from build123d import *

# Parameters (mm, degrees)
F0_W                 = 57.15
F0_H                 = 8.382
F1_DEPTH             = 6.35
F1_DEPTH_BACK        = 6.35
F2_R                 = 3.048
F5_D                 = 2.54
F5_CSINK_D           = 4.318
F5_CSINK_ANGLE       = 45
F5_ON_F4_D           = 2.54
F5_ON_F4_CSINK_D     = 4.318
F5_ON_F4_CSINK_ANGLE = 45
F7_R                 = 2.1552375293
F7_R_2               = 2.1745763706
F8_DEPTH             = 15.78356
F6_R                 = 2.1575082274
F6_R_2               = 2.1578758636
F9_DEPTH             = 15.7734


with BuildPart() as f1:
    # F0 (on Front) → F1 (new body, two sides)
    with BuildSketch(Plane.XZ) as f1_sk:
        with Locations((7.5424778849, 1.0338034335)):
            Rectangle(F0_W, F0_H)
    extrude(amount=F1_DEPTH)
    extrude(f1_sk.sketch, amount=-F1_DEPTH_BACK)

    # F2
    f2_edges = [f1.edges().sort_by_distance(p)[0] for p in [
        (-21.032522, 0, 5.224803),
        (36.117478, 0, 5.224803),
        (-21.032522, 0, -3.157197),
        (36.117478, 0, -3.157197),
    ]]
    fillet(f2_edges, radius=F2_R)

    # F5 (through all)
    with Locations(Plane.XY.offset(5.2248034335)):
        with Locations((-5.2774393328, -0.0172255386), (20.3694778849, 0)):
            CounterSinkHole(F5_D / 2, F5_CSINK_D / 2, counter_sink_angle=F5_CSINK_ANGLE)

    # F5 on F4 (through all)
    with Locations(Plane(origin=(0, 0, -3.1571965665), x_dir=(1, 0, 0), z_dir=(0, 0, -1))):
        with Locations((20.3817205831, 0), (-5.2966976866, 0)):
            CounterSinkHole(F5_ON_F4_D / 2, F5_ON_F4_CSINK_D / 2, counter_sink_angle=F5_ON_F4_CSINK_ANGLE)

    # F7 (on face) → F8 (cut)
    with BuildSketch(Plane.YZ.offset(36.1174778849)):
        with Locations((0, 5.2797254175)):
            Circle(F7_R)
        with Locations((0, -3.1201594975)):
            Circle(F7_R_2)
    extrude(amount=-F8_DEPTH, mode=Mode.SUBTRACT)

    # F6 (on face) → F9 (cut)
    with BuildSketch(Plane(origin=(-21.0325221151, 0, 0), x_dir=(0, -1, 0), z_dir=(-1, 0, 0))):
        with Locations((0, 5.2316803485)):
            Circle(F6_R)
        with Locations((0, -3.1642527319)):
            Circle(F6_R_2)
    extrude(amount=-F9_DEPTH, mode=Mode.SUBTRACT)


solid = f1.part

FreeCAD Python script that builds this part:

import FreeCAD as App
import Part
import Sketcher

V = App.Vector
Q = App.Units.Quantity


def edges_at(feature, points):
    """Names of the edges that pass closest to the given points."""
    edges = feature.Shape.Edges
    near = lambda p: min(range(len(edges)), key=lambda i: edges[i].distToShape(Part.Vertex(*p))[0])
    return sorted({f"Edge{near(p) + 1}" for p in points})


def add_polygon(sketch, points):
    """Adds a closed chain of lines whose ends are joined by coincident constraints."""
    first, n = sketch.GeometryCount, len(points)
    for a, b in zip(points, points[1:] + points[:1]):
        sketch.addGeometry(Part.LineSegment(App.Vector(*a, 0), App.Vector(*b, 0)), False)
    for i in range(n):
        sketch.addConstraint(Sketcher.Constraint("Coincident", first + i, 2, first + (i + 1) % n, 1))

doc = App.newDocument("Part")
params = doc.addObject("Spreadsheet::Sheet", "Params")
for row, (alias, value) in enumerate([
    ("sketch1_width", "2.25 in"),
    ("sketch1_height", "0.33 in"),
    ("pad1_length", "0.25 in"),
    ("pad1_length2", "0.25 in"),
    ("fillet_radius", "0.12 in"),
    ("sketch2_diameter", "0.1 in"),
    ("hole_diameter", "0.1 in"),
    ("hole_csink_diameter", "0.17 in"),
    ("sketch3_diameter", "0.1 in"),
    ("hole2_diameter", "0.1 in"),
    ("hole2_csink_diameter", "0.17 in"),
    ("pocket1_length", "0.6214 in"),
    ("pocket2_length", "0.621 in"),
], start=1):
    params.set(f"A{row}", alias)
    params.set(f"B{row}", "=" + value)
    params.setAlias(f"B{row}", alias)

body = doc.addObject("PartDesign::Body", "Body")

sketch1 = body.newObject("Sketcher::SketchObject", "Sketch")
sketch1.AttachmentSupport = (doc.getObject("XZ_Plane"), [""])
sketch1.MapMode = "FlatFace"
add_polygon(sketch1, [(-21, 5), (-21, -3), (36, -3), (36, 5)])
sketch1.addConstraint([
    Sketcher.Constraint("Vertical", 0),
    Sketcher.Constraint("Horizontal", 1),
    Sketcher.Constraint("Vertical", 2),
    Sketcher.Constraint("Horizontal", 3),
    Sketcher.Constraint("DistanceX", 1, 1, 1, 2, Q("2.25 in")),
    Sketcher.Constraint("DistanceY", 0, 2, 0, 1, Q("0.33 in")),
    Sketcher.Constraint("DistanceX", 0, 2, -1, 1, Q("21.032522 mm")),
    Sketcher.Constraint("DistanceY", 0, 2, -1, 1, Q("3.157197 mm")),
])
sketch1.setExpression("Constraints[8]", "Params.sketch1_width")
sketch1.setExpression("Constraints[9]", "Params.sketch1_height")
pad1 = body.newObject("PartDesign::Pad", "Pad")
pad1.Profile = sketch1
pad1.Type = "TwoLengths"
pad1.setExpression("Length", "Params.pad1_length")
pad1.setExpression("Length2", "Params.pad1_length2")
doc.recompute()

fillet = body.newObject("PartDesign::Fillet", "Fillet")
fillet.Base = (pad1, edges_at(pad1, [
    (-21.033, 0, 5.225),
    (36.117, 0, 5.225),
    (-21.033, 0, -3.157),
    (36.117, 0, -3.157),
]))
fillet.setExpression("Radius", "Params.fillet_radius")

sketch2 = body.newObject("Sketcher::SketchObject", "Sketch001")
sketch2.AttachmentSupport = (doc.getObject("XY_Plane"), [""])
sketch2.MapMode = "FlatFace"
sketch2.AttachmentOffset = App.Placement(V(0, 0, 5.224803), App.Rotation())
sketch2.addGeometry([
    Part.Circle(V(-5.3, 0, 0), V(0, 0, 1), 1.3),
    Part.Circle(V(20.4, 0, 0), V(0, 0, 1), 1.3),
], False)
sketch2.addConstraint([
    Sketcher.Constraint("Equal", 0, 1),
    Sketcher.Constraint("PointOnObject", 1, 3, -1),
    Sketcher.Constraint("Diameter", 0, Q("0.1 in")),
    Sketcher.Constraint("DistanceX", 0, 3, -1, 1, Q("5.277439 mm")),
    Sketcher.Constraint("DistanceY", 0, 3, -1, 1, Q("0.017226 mm")),
    Sketcher.Constraint("DistanceX", -1, 1, 1, 3, Q("20.369478 mm")),
])
sketch2.setExpression("Constraints[2]", "Params.sketch2_diameter")
doc.recompute()
hole = body.newObject("PartDesign::Hole", "Hole")
hole.Profile = sketch2
hole.ThreadType = "None"
hole.setExpression("Diameter", "Params.hole_diameter")
hole.DepthType = "ThroughAll"
hole.HoleCutType = "Countersink"
hole.setExpression("HoleCutDiameter", "Params.hole_csink_diameter")
hole.HoleCutCountersinkAngle = 45

sketch3 = body.newObject("Sketcher::SketchObject", "Sketch002")
sketch3.AttachmentSupport = (doc.getObject("XY_Plane"), [""])
sketch3.MapMode = "FlatFace"
sketch3.AttachmentOffset = App.Placement(V(0, 0, -3.157197), App.Rotation())
sketch3.addGeometry([
    Part.Circle(V(20.4, 0, 0), V(0, 0, 1), 1.3),
    Part.Circle(V(-5.3, 0, 0), V(0, 0, 1), 1.3),
], False)
sketch3.addConstraint([
    Sketcher.Constraint("Equal", 0, 1),
    Sketcher.Constraint("PointOnObject", 0, 3, -1),
    Sketcher.Constraint("PointOnObject", 1, 3, -1),
    Sketcher.Constraint("Diameter", 0, Q("0.1 in")),
    Sketcher.Constraint("DistanceX", -1, 1, 0, 3, Q("20.381721 mm")),
    Sketcher.Constraint("DistanceX", 1, 3, 0, 3, Q("25.678418 mm")),
])
sketch3.setExpression("Constraints[3]", "Params.sketch3_diameter")
doc.recompute()
hole2 = body.newObject("PartDesign::Hole", "Hole001")
hole2.Profile = sketch3
hole2.ThreadType = "None"
hole2.setExpression("Diameter", "Params.hole2_diameter")
hole2.DepthType = "ThroughAll"
hole2.HoleCutType = "Countersink"
hole2.setExpression("HoleCutDiameter", "Params.hole2_csink_diameter")
hole2.HoleCutCountersinkAngle = 45
hole2.Reversed = True

sketch4 = body.newObject("Sketcher::SketchObject", "Sketch003")
sketch4.AttachmentSupport = (doc.getObject("YZ_Plane"), [""])
sketch4.MapMode = "FlatFace"
sketch4.AttachmentOffset = App.Placement(V(0, 0, 36.117478), App.Rotation())
sketch4.addGeometry([
    Part.Circle(V(0, 5.3, 0), V(0, 0, 1), 2.2),
    Part.Circle(V(0, -3.1, 0), V(0, 0, 1), 2.2),
], False)
sketch4.addConstraint([
    Sketcher.Constraint("PointOnObject", 0, 3, -2),
    Sketcher.Constraint("PointOnObject", 1, 3, -2),
    Sketcher.Constraint("Diameter", 0, Q("4.310475 mm")),
    Sketcher.Constraint("Diameter", 1, Q("4.349153 mm")),
    Sketcher.Constraint("DistanceY", 1, 3, -1, 1, Q("3.120159 mm")),
    Sketcher.Constraint("DistanceY", -1, 1, 0, 3, Q("5.279725 mm")),
])
pocket1 = body.newObject("PartDesign::Pocket", "Pocket")
pocket1.Profile = sketch4
pocket1.setExpression("Length", "Params.pocket1_length")

sketch5 = body.newObject("Sketcher::SketchObject", "Sketch004")
sketch5.AttachmentSupport = (doc.getObject("YZ_Plane"), [""])
sketch5.MapMode = "FlatFace"
sketch5.AttachmentOffset = App.Placement(V(0, 0, -21.032522), App.Rotation())
sketch5.addGeometry([
    Part.Circle(V(0, 5.2, 0), V(0, 0, 1), 2.2),
    Part.Circle(V(0, -3.2, 0), V(0, 0, 1), 2.2),
], False)
sketch5.addConstraint([
    Sketcher.Constraint("PointOnObject", 0, 3, -2),
    Sketcher.Constraint("PointOnObject", 1, 3, -2),
    Sketcher.Constraint("Diameter", 1, Q("4.315752 mm")),
    Sketcher.Constraint("Diameter", 0, Q("4.315016 mm")),
    Sketcher.Constraint("DistanceY", -1, 1, 0, 3, Q("5.23168 mm")),
    Sketcher.Constraint("DistanceY", 1, 3, -1, 1, Q("3.164253 mm")),
])
pocket2 = body.newObject("PartDesign::Pocket", "Pocket001")
pocket2.Profile = sketch5
pocket2.setExpression("Length", "Params.pocket2_length")
pocket2.Reversed = True

doc.recompute()
